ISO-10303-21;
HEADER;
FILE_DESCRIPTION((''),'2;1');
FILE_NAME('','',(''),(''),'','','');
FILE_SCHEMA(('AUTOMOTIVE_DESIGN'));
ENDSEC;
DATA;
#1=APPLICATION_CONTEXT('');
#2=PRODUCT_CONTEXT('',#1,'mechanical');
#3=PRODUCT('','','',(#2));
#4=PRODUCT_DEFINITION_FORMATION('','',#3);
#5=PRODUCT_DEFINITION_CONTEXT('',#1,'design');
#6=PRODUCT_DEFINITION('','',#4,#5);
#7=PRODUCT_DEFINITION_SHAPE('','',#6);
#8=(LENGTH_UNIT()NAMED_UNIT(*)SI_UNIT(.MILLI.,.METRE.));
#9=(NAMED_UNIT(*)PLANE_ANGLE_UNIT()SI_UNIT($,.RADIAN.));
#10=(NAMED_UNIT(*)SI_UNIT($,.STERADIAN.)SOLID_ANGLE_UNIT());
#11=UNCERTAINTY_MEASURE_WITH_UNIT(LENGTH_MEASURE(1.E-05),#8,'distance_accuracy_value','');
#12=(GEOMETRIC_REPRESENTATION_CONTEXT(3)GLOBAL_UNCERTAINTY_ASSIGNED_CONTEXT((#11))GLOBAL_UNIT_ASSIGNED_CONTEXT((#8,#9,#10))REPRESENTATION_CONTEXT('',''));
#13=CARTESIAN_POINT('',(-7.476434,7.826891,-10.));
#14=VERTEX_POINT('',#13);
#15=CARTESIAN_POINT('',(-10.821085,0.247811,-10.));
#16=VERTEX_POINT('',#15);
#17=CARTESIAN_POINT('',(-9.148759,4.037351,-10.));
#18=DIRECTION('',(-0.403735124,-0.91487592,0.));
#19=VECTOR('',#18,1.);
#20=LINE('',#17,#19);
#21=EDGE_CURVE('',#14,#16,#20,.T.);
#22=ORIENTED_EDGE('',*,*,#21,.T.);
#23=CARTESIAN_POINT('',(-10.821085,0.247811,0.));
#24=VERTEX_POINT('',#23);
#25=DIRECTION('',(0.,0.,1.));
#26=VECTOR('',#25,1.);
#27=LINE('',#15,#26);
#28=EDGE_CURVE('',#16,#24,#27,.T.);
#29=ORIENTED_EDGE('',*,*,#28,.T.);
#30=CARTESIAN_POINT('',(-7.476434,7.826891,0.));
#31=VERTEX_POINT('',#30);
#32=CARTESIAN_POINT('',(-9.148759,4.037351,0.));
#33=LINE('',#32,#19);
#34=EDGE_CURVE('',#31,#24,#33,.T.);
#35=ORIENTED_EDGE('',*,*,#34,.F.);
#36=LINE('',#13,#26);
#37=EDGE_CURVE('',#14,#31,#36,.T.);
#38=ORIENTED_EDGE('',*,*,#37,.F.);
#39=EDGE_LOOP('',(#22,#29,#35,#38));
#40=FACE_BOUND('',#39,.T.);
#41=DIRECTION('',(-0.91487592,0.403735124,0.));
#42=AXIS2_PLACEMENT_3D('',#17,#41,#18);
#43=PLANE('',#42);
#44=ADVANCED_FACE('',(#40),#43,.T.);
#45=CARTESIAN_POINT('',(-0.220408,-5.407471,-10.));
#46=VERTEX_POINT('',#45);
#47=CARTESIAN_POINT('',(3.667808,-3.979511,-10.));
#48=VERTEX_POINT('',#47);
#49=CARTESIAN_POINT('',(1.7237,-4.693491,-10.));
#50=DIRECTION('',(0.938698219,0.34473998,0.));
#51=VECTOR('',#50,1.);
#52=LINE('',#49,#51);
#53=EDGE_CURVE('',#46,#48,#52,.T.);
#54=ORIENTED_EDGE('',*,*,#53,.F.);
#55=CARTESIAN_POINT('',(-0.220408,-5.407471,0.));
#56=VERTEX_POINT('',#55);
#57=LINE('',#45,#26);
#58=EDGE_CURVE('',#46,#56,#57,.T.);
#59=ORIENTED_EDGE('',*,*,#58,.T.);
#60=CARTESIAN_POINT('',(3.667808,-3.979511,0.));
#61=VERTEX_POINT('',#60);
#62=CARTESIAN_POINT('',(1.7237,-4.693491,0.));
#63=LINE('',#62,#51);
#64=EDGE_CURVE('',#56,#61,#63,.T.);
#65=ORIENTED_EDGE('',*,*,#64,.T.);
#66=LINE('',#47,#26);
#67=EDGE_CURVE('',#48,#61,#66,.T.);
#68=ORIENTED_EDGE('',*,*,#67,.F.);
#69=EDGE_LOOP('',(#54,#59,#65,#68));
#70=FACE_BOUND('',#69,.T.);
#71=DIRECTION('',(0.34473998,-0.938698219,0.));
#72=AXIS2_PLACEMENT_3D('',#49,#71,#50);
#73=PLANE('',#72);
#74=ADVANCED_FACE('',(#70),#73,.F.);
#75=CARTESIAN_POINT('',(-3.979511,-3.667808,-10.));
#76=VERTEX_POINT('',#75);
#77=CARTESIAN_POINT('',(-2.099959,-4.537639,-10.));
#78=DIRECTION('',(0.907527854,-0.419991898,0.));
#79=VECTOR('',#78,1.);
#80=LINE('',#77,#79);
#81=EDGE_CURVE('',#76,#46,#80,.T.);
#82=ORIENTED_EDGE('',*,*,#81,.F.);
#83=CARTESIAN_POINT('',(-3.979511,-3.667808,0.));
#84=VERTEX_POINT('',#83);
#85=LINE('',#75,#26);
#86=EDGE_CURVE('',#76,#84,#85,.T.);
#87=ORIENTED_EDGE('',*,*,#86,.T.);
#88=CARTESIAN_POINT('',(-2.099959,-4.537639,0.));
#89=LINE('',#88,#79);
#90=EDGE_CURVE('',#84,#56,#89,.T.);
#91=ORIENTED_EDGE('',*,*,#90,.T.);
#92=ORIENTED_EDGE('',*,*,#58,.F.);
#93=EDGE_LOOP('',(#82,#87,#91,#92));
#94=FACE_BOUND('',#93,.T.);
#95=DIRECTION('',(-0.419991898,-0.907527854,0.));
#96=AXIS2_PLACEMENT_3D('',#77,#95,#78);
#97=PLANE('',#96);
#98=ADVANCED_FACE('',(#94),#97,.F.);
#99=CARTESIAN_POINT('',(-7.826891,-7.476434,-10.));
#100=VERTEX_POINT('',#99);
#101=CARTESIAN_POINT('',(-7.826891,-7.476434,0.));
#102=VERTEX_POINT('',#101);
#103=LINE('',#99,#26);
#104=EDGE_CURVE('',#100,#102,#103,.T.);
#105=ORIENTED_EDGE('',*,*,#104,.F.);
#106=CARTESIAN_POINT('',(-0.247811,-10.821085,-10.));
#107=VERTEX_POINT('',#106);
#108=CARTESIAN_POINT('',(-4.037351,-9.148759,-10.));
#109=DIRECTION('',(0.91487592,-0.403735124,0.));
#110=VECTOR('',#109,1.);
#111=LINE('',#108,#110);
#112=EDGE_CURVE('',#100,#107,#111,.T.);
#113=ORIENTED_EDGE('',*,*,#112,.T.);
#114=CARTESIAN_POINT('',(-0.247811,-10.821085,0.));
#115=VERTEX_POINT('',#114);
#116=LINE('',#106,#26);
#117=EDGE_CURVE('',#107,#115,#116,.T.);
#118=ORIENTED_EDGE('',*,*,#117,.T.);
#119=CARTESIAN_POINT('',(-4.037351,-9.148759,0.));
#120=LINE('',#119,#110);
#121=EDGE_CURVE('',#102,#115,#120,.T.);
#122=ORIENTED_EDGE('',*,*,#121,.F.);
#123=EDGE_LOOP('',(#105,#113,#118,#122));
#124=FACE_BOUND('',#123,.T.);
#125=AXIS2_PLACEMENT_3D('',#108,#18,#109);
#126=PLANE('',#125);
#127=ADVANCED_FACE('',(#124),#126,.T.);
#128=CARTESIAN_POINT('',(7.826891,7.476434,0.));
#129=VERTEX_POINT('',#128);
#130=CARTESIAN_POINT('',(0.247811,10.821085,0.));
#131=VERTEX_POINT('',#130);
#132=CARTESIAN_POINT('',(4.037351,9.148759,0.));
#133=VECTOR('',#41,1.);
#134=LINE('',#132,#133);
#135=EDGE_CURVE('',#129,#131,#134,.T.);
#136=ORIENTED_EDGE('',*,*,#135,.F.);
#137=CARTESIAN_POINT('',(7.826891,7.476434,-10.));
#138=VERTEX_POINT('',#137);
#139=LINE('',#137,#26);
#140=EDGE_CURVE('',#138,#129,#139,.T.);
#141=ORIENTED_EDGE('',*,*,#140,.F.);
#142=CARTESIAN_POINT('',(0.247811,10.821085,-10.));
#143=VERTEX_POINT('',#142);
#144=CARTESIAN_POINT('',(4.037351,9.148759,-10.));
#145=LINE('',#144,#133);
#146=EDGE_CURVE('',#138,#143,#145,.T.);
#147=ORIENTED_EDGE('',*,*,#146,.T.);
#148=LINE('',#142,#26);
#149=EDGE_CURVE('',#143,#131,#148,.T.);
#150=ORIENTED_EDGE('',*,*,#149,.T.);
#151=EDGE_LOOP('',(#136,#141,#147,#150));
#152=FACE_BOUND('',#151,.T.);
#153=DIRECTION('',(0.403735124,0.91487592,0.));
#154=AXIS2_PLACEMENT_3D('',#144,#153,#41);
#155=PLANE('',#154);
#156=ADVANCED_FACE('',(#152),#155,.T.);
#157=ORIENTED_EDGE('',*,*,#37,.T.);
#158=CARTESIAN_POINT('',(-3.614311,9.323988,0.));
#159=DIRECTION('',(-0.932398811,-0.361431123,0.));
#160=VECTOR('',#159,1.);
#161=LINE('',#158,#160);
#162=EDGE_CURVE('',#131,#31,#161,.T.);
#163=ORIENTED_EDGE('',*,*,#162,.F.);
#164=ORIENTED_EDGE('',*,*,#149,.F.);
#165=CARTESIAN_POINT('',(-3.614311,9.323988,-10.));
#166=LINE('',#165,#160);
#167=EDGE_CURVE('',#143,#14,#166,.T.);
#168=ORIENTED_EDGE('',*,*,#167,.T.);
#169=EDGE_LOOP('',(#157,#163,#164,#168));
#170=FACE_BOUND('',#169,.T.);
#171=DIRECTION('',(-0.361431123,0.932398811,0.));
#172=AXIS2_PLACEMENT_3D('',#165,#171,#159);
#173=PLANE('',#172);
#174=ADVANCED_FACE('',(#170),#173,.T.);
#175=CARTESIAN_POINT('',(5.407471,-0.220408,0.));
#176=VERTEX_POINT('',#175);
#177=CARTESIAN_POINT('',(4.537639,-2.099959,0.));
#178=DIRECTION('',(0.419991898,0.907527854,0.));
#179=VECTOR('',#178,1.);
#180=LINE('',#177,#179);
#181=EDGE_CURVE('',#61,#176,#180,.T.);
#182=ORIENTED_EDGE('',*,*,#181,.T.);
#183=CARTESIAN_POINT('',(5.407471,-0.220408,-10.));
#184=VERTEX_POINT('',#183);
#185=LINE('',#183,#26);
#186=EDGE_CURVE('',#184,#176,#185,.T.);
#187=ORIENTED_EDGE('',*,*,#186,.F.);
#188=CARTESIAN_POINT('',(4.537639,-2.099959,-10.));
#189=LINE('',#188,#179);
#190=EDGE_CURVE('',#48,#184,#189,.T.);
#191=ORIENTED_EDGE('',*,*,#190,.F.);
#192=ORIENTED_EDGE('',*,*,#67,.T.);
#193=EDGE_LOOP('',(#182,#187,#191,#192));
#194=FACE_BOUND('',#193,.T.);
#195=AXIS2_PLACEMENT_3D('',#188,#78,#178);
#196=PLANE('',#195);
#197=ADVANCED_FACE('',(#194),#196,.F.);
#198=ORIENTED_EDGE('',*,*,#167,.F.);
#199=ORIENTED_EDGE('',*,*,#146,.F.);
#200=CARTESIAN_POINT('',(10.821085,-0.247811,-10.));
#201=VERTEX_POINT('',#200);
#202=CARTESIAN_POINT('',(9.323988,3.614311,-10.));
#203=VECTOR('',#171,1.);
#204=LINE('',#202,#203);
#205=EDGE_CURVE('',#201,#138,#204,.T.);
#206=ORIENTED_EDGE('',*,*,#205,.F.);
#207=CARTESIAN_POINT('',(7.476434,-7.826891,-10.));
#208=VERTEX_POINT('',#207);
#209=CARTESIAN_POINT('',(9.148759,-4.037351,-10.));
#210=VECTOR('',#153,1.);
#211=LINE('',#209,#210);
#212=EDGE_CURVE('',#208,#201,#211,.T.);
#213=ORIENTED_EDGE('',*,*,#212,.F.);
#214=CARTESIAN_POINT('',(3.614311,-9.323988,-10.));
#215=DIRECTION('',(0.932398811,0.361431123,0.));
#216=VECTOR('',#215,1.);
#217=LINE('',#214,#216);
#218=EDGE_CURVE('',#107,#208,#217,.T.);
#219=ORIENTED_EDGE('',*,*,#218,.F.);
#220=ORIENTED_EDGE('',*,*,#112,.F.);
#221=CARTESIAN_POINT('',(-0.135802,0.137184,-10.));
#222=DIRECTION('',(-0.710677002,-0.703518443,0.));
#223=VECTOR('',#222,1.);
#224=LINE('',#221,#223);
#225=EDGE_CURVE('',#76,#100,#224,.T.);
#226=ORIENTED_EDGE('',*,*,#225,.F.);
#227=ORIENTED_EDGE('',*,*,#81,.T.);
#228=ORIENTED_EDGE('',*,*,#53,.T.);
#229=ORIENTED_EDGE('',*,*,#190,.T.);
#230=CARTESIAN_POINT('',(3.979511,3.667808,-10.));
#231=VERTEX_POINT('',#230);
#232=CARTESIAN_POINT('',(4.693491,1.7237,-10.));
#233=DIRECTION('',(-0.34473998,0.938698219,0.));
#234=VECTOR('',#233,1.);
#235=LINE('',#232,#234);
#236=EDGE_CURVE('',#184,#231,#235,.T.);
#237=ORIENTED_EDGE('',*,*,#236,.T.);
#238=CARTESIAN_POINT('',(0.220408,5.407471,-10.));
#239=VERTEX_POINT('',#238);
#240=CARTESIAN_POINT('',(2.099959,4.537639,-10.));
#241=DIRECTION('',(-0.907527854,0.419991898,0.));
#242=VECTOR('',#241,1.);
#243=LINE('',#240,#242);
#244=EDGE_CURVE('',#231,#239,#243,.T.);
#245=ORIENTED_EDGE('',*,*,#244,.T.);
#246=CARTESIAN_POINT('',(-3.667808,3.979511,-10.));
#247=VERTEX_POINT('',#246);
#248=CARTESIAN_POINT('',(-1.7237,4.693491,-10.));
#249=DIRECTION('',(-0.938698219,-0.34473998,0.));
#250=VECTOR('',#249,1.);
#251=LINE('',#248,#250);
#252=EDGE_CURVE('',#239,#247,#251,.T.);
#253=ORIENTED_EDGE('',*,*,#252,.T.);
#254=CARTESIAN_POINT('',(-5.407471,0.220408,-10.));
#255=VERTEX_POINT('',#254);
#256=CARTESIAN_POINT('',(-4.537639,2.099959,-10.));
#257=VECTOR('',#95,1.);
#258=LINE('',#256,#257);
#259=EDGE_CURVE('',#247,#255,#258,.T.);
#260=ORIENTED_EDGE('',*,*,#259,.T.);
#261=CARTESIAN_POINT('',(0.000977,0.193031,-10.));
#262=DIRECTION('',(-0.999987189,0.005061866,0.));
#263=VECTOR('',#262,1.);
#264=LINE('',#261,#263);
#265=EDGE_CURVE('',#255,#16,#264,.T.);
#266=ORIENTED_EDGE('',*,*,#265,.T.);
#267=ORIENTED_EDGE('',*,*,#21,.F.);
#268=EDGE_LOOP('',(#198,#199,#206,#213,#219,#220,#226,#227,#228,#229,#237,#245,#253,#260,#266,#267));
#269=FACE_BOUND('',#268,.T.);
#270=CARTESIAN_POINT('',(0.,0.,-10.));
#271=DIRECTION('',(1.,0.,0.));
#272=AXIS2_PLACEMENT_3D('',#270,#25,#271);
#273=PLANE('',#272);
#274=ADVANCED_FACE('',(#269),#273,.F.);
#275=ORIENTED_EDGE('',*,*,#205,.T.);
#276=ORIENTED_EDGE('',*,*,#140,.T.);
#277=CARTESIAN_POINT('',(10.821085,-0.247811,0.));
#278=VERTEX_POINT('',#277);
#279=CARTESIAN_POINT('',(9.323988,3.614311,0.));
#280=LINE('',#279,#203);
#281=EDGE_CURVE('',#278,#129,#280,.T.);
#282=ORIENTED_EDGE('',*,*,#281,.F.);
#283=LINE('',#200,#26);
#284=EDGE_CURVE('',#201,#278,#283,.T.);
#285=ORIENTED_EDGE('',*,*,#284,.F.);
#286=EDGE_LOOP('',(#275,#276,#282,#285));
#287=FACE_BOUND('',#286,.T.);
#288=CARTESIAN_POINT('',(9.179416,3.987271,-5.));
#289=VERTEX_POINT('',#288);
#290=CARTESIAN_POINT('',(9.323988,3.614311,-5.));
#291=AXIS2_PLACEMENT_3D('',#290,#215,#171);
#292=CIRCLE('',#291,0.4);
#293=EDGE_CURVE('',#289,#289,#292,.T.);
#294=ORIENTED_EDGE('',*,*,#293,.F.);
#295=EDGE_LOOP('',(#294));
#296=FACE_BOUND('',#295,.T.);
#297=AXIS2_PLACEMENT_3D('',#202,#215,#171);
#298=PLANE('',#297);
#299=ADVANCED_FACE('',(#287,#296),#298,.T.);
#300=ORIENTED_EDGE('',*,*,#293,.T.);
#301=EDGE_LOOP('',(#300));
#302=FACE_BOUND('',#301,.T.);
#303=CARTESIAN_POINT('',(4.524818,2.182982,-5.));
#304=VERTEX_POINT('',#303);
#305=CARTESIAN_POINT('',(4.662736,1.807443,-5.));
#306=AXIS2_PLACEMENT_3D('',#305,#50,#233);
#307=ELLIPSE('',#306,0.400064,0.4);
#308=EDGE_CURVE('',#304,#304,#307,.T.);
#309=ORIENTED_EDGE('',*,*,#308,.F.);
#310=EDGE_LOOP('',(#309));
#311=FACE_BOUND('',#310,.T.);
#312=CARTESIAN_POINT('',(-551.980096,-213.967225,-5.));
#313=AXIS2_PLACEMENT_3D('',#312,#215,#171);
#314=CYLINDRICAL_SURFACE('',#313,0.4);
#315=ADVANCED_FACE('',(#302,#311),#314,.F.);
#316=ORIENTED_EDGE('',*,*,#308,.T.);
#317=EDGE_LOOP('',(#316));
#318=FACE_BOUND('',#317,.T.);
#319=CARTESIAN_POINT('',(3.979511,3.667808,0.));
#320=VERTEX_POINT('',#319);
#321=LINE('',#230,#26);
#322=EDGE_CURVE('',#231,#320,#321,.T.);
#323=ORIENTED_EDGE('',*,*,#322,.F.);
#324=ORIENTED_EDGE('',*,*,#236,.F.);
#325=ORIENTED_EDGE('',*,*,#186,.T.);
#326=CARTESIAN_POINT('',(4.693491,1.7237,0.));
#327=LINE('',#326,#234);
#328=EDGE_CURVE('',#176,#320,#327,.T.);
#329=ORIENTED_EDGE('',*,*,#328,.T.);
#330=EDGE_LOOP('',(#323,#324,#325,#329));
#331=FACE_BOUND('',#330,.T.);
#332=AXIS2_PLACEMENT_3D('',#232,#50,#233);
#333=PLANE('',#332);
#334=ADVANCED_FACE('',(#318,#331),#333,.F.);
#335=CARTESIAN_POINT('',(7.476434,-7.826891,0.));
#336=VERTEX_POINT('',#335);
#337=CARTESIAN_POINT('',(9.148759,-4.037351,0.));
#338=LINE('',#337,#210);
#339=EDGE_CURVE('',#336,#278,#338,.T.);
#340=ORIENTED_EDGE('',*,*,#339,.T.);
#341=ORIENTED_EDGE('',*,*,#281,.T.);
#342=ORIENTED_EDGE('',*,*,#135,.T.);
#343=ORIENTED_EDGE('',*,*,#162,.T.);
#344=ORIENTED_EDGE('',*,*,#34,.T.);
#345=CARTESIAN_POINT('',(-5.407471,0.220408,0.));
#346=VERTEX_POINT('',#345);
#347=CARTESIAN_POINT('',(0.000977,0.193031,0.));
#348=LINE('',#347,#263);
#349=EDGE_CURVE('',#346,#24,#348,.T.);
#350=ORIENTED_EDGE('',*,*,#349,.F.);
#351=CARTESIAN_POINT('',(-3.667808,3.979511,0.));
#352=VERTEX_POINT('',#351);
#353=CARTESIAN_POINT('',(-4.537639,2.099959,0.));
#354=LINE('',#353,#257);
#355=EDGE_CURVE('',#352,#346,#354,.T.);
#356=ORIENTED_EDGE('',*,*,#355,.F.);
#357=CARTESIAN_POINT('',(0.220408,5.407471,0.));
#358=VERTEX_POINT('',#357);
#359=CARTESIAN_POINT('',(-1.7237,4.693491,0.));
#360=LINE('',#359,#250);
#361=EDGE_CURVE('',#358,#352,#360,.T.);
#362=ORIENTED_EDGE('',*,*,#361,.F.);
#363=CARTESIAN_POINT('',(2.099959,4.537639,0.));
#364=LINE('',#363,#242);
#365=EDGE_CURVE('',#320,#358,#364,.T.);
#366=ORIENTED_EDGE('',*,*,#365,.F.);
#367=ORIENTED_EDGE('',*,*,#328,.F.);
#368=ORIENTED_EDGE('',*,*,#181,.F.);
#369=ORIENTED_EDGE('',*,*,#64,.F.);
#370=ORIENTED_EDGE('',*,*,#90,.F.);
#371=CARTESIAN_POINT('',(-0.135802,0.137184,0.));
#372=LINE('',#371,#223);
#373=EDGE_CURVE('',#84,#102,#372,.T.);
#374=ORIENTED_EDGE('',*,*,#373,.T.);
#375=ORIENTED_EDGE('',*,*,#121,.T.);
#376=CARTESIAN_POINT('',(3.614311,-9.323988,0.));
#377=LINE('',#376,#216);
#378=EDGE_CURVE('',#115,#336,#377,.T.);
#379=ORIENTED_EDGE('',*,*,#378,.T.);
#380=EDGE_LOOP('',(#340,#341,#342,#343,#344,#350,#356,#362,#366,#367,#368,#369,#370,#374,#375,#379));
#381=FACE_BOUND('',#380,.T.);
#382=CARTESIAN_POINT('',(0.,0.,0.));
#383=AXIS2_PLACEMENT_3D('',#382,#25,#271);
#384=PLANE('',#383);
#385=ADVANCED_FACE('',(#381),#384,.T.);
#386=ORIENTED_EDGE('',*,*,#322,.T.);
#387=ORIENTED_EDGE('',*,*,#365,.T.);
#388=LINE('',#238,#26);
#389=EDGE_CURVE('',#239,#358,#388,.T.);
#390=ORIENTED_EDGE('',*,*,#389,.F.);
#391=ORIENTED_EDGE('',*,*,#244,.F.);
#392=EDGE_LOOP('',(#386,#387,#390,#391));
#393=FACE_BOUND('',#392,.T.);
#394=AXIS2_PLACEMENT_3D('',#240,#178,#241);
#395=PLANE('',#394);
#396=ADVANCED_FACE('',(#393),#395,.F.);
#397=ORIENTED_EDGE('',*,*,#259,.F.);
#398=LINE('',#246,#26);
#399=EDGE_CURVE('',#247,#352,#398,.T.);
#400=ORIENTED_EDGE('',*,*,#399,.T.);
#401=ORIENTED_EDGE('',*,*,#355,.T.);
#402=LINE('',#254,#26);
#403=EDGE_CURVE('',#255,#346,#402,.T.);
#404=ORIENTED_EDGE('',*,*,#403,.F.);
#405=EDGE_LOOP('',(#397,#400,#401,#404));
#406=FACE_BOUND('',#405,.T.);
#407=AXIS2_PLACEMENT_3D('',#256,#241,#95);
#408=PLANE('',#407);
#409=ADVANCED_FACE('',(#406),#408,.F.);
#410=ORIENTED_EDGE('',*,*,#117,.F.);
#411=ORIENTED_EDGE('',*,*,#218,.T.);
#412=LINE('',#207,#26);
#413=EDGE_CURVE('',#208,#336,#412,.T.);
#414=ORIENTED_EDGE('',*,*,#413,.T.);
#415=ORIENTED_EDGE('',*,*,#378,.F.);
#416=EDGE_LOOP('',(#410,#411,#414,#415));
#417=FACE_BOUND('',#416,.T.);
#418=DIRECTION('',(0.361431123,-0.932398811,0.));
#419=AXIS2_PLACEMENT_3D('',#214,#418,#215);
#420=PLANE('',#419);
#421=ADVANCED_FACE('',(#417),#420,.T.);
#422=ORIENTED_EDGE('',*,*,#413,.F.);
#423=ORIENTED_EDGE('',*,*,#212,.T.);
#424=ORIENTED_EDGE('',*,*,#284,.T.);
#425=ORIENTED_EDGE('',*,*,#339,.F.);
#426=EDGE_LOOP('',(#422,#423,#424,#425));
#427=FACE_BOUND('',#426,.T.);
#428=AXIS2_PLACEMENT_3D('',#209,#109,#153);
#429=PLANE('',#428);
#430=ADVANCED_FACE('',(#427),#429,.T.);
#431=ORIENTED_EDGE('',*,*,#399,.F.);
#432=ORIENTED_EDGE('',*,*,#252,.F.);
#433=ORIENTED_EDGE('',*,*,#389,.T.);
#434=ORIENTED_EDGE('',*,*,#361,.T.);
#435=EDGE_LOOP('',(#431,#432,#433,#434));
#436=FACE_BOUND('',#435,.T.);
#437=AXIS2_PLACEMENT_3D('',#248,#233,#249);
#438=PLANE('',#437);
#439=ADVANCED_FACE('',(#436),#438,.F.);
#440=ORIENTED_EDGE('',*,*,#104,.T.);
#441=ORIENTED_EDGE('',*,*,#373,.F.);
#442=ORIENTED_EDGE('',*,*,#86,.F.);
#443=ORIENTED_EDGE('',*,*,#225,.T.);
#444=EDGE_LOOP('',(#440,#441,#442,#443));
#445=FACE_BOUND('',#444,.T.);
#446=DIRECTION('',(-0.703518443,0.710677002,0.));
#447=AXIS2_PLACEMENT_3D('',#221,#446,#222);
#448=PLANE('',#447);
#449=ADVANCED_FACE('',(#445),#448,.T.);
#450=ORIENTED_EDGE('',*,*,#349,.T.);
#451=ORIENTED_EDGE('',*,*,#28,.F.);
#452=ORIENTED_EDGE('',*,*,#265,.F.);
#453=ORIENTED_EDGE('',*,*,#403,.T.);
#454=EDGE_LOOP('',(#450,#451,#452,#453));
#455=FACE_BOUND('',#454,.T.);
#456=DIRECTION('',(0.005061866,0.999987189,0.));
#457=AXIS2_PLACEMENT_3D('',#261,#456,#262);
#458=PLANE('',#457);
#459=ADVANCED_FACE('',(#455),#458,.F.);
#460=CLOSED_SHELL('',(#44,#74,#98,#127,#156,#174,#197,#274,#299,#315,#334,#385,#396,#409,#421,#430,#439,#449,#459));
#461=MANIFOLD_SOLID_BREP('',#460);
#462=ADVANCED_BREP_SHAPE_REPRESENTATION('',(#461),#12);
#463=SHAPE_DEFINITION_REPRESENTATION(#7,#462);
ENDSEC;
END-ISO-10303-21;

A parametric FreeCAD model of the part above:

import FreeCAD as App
import Part
import Sketcher
from FreeCAD import Vector
Q = App.Units.Quantity


def add_polygon(sketch, points):
    """Adds a closed chain of lines whose ends are joined by coincident constraints."""
    first, n = sketch.GeometryCount, len(points)
    for a, b in zip(points, points[1:] + points[:1]):
        sketch.addGeometry(Part.LineSegment(App.Vector(*a, 0), App.Vector(*b, 0)), False)
    for i in range(n):
        sketch.addConstraint(Sketcher.Constraint("Coincident", first + i, 2, first + (i + 1) % n, 1))

doc = App.newDocument("Part")
body = doc.addObject("PartDesign::Body", "Body")

# Sketch on XY plane
sketch1 = doc.addObject("Sketcher::SketchObject", "Sketch")
body.addObject(sketch1)
sketch1.AttachmentSupport = (doc.XY_Plane, [""])
sketch1.MapMode = "FlatFace"
add_polygon(sketch1, [(-0.2, -5.4), (-4, -3.7), (-7.8, -7.5), (-0.2, -10.8), (7.5, -7.8), (10.8, -0.2), (7.8, 7.5), (0.2, 10.8), (-7.5, 7.8), (-10.8, 0.2), (-5.4, 0.2), (-3.7, 4), (0.2, 5.4), (4, 3.7), (5.4, -0.2), (3.7, -4)])  # lines 0-15
sketch1.addConstraint([
    Sketcher.Constraint("Symmetric", 1, 2, 5, 2, -1, 1),
    Sketcher.Constraint("Symmetric", 2, 2, 6, 2, -1, 1),
    Sketcher.Constraint("Symmetric", 3, 2, 7, 2, -1, 1),
    Sketcher.Constraint("Symmetric", 4, 2, 8, 2, -1, 1),
    Sketcher.Constraint("Symmetric", 0, 2, 12, 2, -1, 1),
    Sketcher.Constraint("Symmetric", 9, 2, 13, 2, -1, 1),
    Sketcher.Constraint("Symmetric", 10, 2, 14, 2, -1, 1),
    Sketcher.Constraint("Symmetric", 11, 2, 15, 2, -1, 1),
    Sketcher.Constraint("Perpendicular", 2, 4),
    Sketcher.Constraint("Perpendicular", 3, 5),
    Sketcher.Constraint("Perpendicular", 0, 10),
    Sketcher.Constraint("Perpendicular", 11, 13),
    Sketcher.Constraint("Equal", 2, 3),
    Sketcher.Constraint("Equal", 3, 4),
    Sketcher.Constraint("Equal", 4, 5),
    Sketcher.Constraint("Equal", 1, 9),
    Sketcher.Constraint("Equal", 0, 10),
    Sketcher.Constraint("Equal", 10, 11),
    Sketcher.Constraint("Equal", 12, 13),
    Sketcher.Constraint("DistanceX", 0, 2, 2, 2, Q("3.7317 mm")),
    Sketcher.Constraint("DistanceY", 0, 2, 7, 2, Q("11.494699 mm")),
    Sketcher.Constraint("Distance", 2, Q("8.284271 mm")),
    Sketcher.Constraint("DistanceX", 0, 2, -1, 1, Q("3.979511 mm")),
    Sketcher.Constraint("DistanceX", 1, 2, -1, 1, Q("7.826891 mm")),
])
pad1 = doc.addObject("PartDesign::Pad", "Pad")
body.addObject(pad1)
pad1.Profile = sketch1
pad1.Length = 10
pad1.Reversed = True

# Sketch on an angled plane
sketch2 = doc.addObject("Sketcher::SketchObject", "Sketch001")
body.addObject(sketch2)
sketch2.Placement = App.Placement(Vector(9.323988, 3.614311, 0), App.Rotation(Vector(0, 0, -1), Vector(-0.361431123, 0.932398811, 0), Vector(0.932398811, 0.361431123, 0), "ZXY"))
sketch2.addGeometry(Part.Circle(Vector(5, 0, 0), Vector(0, 0, 1), 0.4), False)
sketch2.addConstraint([
    Sketcher.Constraint("PointOnObject", 0, 3, -1),
    Sketcher.Constraint("Diameter", 0, Q("0.8 mm")),
    Sketcher.Constraint("DistanceX", -1, 1, 0, 3, Q("5 mm")),
])
pocket1 = doc.addObject("PartDesign::Pocket", "Pocket")
body.addObject(pocket1)
pocket1.Profile = sketch2
pocket1.Length = 602

doc.recompute()
